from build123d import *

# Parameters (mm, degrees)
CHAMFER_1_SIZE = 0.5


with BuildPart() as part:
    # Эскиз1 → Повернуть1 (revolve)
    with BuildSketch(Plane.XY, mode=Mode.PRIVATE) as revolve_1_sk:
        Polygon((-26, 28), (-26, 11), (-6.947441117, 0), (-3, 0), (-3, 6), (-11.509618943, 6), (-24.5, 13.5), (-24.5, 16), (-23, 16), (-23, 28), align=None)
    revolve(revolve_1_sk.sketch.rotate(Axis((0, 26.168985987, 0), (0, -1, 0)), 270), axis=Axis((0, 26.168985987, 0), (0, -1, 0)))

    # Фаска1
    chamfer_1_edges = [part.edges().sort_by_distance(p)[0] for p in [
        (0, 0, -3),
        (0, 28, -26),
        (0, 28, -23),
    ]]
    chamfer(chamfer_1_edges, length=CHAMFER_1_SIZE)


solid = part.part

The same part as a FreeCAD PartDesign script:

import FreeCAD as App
import Part
import Sketcher
Q = App.Units.Quantity


def edges_at(feature, points):
    """Names of the edges that pass closest to the given points."""
    edges = feature.Shape.Edges
    near = lambda p: min(range(len(edges)), key=lambda i: edges[i].distToShape(Part.Vertex(*p))[0])
    return sorted({f"Edge{near(p) + 1}" for p in points})


def add_polygon(sketch, points):
    """Adds a closed chain of lines whose ends are joined by coincident constraints."""
    first, n = sketch.GeometryCount, len(points)
    for a, b in zip(points, points[1:] + points[:1]):
        sketch.addGeometry(Part.LineSegment(App.Vector(*a, 0), App.Vector(*b, 0)), False)
    for i in range(n):
        sketch.addConstraint(Sketcher.Constraint("Coincident", first + i, 2, first + (i + 1) % n, 1))

doc = App.newDocument("Part")
body = doc.addObject("PartDesign::Body", "Body")

sketch1 = doc.addObject("Sketcher::SketchObject", "Sketch")
body.addObject(sketch1)
sketch1.AttachmentSupport = (doc.XY_Plane, [""])
sketch1.MapMode = "FlatFace"
add_polygon(sketch1, [(-26, 28), (-26, 11), (-6.9, 0), (-3, 0), (-3, 6), (-11.5, 6), (-24.5, 13.5), (-24.5, 16), (-23, 16), (-23, 28)])
sketch1.addConstraint(Sketcher.Constraint("Vertical", 0))
sketch1.addConstraint(Sketcher.Constraint("Horizontal", 2))
sketch1.addConstraint(Sketcher.Constraint("Vertical", 3))
sketch1.addConstraint(Sketcher.Constraint("Horizontal", 4))
sketch1.addConstraint(Sketcher.Constraint("Vertical", 6))
sketch1.addConstraint(Sketcher.Constraint("Horizontal", 7))
sketch1.addConstraint(Sketcher.Constraint("Vertical", 8))
sketch1.addConstraint(Sketcher.Constraint("Horizontal", 9))
sketch1.addConstraint(Sketcher.Constraint("PointOnObject", 1, 2, -1))
sketch1.addConstraint(Sketcher.Constraint("Parallel", 1, 5))
sketch1.addConstraint(Sketcher.Constraint("DistanceX", 9, 2, 9, 1, 3.0))
sketch1.addConstraint(Sketcher.Constraint("DistanceY", 0, 2, 0, 1, 17.0))
sketch1.addConstraint(Sketcher.Constraint("DistanceY", 3, 1, 3, 2, 6.0))
sketch1.addConstraint(Sketcher.Constraint("DistanceY", 8, 1, 8, 2, 12.0))
sketch1.addConstraint(Sketcher.Constraint("Angle", 1, Q("-30 deg")))
sketch1.addConstraint(Sketcher.Constraint("Distance", 1, 22.0))
sketch1.addConstraint(Sketcher.Constraint("Distance", 5, 15.0))
sketch1.addConstraint(Sketcher.Constraint("DistanceX", 7, 1, 7, 2, 1.5))
sketch1.addConstraint(Sketcher.Constraint("DistanceX", 0, 2, -1, 1, 26.0))
sketch1.addConstraint(Sketcher.Constraint("DistanceX", 2, 2, -1, 1, 3.0))
revolution = doc.addObject("PartDesign::Revolution", "Revolution")
body.addObject(revolution)
revolution.Profile = sketch1
revolution.ReferenceAxis = (sketch1, ["V_Axis"])
revolution.Angle = 360
doc.recompute()

chamfer = doc.addObject("PartDesign::Chamfer", "Chamfer")
body.addObject(chamfer)
chamfer.Base = (revolution, edges_at(revolution, [(0, 0, -3), (0, 28, -26), (0, 28, -23)]))
chamfer.Size = 0.5

doc.recompute()
